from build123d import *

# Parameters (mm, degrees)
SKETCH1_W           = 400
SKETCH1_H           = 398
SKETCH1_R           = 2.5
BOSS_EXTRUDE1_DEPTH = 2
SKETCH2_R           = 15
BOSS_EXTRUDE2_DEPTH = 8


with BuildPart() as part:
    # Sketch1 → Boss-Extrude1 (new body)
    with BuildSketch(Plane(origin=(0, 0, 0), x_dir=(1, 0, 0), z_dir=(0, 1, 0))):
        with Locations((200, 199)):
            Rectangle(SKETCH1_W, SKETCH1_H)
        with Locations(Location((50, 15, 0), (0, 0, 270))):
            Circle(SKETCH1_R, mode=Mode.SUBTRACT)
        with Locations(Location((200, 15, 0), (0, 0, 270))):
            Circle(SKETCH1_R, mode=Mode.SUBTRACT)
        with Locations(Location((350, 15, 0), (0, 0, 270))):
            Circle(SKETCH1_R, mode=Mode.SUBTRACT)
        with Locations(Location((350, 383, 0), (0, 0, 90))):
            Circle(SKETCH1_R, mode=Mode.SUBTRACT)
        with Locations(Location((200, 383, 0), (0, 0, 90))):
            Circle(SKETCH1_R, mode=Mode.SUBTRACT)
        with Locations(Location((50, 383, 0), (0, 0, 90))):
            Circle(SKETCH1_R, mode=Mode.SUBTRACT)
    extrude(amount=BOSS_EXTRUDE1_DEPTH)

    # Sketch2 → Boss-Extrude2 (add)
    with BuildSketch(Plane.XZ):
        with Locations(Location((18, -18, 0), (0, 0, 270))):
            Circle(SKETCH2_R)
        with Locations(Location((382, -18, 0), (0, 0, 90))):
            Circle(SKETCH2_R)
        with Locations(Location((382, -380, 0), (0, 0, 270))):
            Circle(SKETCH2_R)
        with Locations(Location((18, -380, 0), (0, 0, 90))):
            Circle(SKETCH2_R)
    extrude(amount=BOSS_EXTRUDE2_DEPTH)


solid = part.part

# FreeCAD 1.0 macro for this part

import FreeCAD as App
import Part
import Sketcher

V = App.Vector
Q = App.Units.Quantity

doc = App.newDocument("Part")
body = doc.addObject("PartDesign::Body", "Body")

sketch1 = doc.addObject("Sketcher::SketchObject", "Sketch")
body.addObject(sketch1)
sketch1.AttachmentSupport = (doc.XZ_Plane, [""])
sketch1.MapMode = "FlatFace"
sketch1.addGeometry([
    Part.LineSegment(V(0, -398, 0), V(0, 0, 0)),
    Part.LineSegment(V(0, 0, 0), V(400, 0, 0)),
    Part.LineSegment(V(400, 0, 0), V(400, -398, 0)),
    Part.LineSegment(V(400, -398, 0), V(0, -398, 0)),
    Part.Circle(V(50, -15, 0), V(0, 0, 1), 2.5),
    Part.Circle(V(200, -15, 0), V(0, 0, 1), 2.5),
    Part.Circle(V(350, -15, 0), V(0, 0, 1), 2.5),
    Part.Circle(V(50, -383, 0), V(0, 0, 1), 2.5),
    Part.Circle(V(200, -383, 0), V(0, 0, 1), 2.5),
    Part.Circle(V(350, -383, 0), V(0, 0, 1), 2.5),
], False)
sketch1.addConstraint([
    Sketcher.Constraint("Coincident", 0, 2, 1, 1),
    Sketcher.Constraint("Coincident", 1, 2, 2, 1),
    Sketcher.Constraint("Coincident", 2, 2, 3, 1),
    Sketcher.Constraint("Coincident", 3, 2, 0, 1),
    Sketcher.Constraint("Vertical", 0),
    Sketcher.Constraint("Horizontal", 1),
    Sketcher.Constraint("Vertical", 2),
    Sketcher.Constraint("Horizontal", 3),
    Sketcher.Constraint("Coincident", 0, 2, -1, 1),
    Sketcher.Constraint("Equal", 4, 5),
    Sketcher.Constraint("Equal", 5, 6),
    Sketcher.Constraint("Equal", 6, 7),
    Sketcher.Constraint("Equal", 7, 8),
    Sketcher.Constraint("Equal", 8, 9),
    Sketcher.Constraint("Horizontal", 4, 3, 5, 3),
    Sketcher.Constraint("Horizontal", 5, 3, 6, 3),
    Sketcher.Constraint("Horizontal", 7, 3, 8, 3),
    Sketcher.Constraint("Horizontal", 8, 3, 9, 3),
    Sketcher.Constraint("Vertical", 4, 3, 7, 3),
    Sketcher.Constraint("Vertical", 5, 3, 8, 3),
    Sketcher.Constraint("Vertical", 6, 3, 9, 3),
    Sketcher.Constraint("Diameter", 4, Q("5 mm")),
    Sketcher.Constraint("DistanceX", 1, 1, 1, 2, Q("400 mm")),
    Sketcher.Constraint("DistanceY", 0, 1, 0, 2, Q("398 mm")),
    Sketcher.Constraint("DistanceX", -1, 1, 4, 3, Q("50 mm")),
    Sketcher.Constraint("DistanceY", 4, 3, -1, 1, Q("15 mm")),
    Sketcher.Constraint("DistanceX", -1, 1, 5, 3, Q("200 mm")),
    Sketcher.Constraint("DistanceX", -1, 1, 6, 3, Q("350 mm")),
    Sketcher.Constraint("DistanceY", 7, 3, -1, 1, Q("383 mm")),
])
pad1 = doc.addObject("PartDesign::Pad", "Pad")
body.addObject(pad1)
pad1.Profile = sketch1
pad1.Length = 2
pad1.Reversed = True

sketch2 = doc.addObject("Sketcher::SketchObject", "Sketch001")
body.addObject(sketch2)
sketch2.AttachmentSupport = (doc.XZ_Plane, [""])
sketch2.MapMode = "FlatFace"
sketch2.addGeometry([
    Part.Circle(V(18, -18, 0), V(0, 0, 1), 15),
    Part.Circle(V(382, -18, 0), V(0, 0, 1), 15),
    Part.Circle(V(382, -380, 0), V(0, 0, 1), 15),
    Part.Circle(V(18, -380, 0), V(0, 0, 1), 15),
], False)
sketch2.addConstraint([
    Sketcher.Constraint("Equal", 0, 1),
    Sketcher.Constraint("Equal", 1, 2),
    Sketcher.Constraint("Equal", 2, 3),
    Sketcher.Constraint("Horizontal", 0, 3, 1, 3),
    Sketcher.Constraint("Horizontal", 2, 3, 3, 3),
    Sketcher.Constraint("Vertical", 1, 3, 2, 3),
    Sketcher.Constraint("Vertical", 0, 3, 3, 3),
    Sketcher.Constraint("Diameter", 0, Q("30 mm")),
    Sketcher.Constraint("DistanceX", -1, 1, 0, 3, Q("18 mm")),
    Sketcher.Constraint("DistanceY", 0, 3, -1, 1, Q("18 mm")),
    Sketcher.Constraint("DistanceX", -1, 1, 1, 3, Q("382 mm")),
    Sketcher.Constraint("DistanceY", 2, 3, -1, 1, Q("380 mm")),
])
pad2 = doc.addObject("PartDesign::Pad", "Pad001")
body.addObject(pad2)
pad2.Profile = sketch2
pad2.Length = 8

doc.recompute()
